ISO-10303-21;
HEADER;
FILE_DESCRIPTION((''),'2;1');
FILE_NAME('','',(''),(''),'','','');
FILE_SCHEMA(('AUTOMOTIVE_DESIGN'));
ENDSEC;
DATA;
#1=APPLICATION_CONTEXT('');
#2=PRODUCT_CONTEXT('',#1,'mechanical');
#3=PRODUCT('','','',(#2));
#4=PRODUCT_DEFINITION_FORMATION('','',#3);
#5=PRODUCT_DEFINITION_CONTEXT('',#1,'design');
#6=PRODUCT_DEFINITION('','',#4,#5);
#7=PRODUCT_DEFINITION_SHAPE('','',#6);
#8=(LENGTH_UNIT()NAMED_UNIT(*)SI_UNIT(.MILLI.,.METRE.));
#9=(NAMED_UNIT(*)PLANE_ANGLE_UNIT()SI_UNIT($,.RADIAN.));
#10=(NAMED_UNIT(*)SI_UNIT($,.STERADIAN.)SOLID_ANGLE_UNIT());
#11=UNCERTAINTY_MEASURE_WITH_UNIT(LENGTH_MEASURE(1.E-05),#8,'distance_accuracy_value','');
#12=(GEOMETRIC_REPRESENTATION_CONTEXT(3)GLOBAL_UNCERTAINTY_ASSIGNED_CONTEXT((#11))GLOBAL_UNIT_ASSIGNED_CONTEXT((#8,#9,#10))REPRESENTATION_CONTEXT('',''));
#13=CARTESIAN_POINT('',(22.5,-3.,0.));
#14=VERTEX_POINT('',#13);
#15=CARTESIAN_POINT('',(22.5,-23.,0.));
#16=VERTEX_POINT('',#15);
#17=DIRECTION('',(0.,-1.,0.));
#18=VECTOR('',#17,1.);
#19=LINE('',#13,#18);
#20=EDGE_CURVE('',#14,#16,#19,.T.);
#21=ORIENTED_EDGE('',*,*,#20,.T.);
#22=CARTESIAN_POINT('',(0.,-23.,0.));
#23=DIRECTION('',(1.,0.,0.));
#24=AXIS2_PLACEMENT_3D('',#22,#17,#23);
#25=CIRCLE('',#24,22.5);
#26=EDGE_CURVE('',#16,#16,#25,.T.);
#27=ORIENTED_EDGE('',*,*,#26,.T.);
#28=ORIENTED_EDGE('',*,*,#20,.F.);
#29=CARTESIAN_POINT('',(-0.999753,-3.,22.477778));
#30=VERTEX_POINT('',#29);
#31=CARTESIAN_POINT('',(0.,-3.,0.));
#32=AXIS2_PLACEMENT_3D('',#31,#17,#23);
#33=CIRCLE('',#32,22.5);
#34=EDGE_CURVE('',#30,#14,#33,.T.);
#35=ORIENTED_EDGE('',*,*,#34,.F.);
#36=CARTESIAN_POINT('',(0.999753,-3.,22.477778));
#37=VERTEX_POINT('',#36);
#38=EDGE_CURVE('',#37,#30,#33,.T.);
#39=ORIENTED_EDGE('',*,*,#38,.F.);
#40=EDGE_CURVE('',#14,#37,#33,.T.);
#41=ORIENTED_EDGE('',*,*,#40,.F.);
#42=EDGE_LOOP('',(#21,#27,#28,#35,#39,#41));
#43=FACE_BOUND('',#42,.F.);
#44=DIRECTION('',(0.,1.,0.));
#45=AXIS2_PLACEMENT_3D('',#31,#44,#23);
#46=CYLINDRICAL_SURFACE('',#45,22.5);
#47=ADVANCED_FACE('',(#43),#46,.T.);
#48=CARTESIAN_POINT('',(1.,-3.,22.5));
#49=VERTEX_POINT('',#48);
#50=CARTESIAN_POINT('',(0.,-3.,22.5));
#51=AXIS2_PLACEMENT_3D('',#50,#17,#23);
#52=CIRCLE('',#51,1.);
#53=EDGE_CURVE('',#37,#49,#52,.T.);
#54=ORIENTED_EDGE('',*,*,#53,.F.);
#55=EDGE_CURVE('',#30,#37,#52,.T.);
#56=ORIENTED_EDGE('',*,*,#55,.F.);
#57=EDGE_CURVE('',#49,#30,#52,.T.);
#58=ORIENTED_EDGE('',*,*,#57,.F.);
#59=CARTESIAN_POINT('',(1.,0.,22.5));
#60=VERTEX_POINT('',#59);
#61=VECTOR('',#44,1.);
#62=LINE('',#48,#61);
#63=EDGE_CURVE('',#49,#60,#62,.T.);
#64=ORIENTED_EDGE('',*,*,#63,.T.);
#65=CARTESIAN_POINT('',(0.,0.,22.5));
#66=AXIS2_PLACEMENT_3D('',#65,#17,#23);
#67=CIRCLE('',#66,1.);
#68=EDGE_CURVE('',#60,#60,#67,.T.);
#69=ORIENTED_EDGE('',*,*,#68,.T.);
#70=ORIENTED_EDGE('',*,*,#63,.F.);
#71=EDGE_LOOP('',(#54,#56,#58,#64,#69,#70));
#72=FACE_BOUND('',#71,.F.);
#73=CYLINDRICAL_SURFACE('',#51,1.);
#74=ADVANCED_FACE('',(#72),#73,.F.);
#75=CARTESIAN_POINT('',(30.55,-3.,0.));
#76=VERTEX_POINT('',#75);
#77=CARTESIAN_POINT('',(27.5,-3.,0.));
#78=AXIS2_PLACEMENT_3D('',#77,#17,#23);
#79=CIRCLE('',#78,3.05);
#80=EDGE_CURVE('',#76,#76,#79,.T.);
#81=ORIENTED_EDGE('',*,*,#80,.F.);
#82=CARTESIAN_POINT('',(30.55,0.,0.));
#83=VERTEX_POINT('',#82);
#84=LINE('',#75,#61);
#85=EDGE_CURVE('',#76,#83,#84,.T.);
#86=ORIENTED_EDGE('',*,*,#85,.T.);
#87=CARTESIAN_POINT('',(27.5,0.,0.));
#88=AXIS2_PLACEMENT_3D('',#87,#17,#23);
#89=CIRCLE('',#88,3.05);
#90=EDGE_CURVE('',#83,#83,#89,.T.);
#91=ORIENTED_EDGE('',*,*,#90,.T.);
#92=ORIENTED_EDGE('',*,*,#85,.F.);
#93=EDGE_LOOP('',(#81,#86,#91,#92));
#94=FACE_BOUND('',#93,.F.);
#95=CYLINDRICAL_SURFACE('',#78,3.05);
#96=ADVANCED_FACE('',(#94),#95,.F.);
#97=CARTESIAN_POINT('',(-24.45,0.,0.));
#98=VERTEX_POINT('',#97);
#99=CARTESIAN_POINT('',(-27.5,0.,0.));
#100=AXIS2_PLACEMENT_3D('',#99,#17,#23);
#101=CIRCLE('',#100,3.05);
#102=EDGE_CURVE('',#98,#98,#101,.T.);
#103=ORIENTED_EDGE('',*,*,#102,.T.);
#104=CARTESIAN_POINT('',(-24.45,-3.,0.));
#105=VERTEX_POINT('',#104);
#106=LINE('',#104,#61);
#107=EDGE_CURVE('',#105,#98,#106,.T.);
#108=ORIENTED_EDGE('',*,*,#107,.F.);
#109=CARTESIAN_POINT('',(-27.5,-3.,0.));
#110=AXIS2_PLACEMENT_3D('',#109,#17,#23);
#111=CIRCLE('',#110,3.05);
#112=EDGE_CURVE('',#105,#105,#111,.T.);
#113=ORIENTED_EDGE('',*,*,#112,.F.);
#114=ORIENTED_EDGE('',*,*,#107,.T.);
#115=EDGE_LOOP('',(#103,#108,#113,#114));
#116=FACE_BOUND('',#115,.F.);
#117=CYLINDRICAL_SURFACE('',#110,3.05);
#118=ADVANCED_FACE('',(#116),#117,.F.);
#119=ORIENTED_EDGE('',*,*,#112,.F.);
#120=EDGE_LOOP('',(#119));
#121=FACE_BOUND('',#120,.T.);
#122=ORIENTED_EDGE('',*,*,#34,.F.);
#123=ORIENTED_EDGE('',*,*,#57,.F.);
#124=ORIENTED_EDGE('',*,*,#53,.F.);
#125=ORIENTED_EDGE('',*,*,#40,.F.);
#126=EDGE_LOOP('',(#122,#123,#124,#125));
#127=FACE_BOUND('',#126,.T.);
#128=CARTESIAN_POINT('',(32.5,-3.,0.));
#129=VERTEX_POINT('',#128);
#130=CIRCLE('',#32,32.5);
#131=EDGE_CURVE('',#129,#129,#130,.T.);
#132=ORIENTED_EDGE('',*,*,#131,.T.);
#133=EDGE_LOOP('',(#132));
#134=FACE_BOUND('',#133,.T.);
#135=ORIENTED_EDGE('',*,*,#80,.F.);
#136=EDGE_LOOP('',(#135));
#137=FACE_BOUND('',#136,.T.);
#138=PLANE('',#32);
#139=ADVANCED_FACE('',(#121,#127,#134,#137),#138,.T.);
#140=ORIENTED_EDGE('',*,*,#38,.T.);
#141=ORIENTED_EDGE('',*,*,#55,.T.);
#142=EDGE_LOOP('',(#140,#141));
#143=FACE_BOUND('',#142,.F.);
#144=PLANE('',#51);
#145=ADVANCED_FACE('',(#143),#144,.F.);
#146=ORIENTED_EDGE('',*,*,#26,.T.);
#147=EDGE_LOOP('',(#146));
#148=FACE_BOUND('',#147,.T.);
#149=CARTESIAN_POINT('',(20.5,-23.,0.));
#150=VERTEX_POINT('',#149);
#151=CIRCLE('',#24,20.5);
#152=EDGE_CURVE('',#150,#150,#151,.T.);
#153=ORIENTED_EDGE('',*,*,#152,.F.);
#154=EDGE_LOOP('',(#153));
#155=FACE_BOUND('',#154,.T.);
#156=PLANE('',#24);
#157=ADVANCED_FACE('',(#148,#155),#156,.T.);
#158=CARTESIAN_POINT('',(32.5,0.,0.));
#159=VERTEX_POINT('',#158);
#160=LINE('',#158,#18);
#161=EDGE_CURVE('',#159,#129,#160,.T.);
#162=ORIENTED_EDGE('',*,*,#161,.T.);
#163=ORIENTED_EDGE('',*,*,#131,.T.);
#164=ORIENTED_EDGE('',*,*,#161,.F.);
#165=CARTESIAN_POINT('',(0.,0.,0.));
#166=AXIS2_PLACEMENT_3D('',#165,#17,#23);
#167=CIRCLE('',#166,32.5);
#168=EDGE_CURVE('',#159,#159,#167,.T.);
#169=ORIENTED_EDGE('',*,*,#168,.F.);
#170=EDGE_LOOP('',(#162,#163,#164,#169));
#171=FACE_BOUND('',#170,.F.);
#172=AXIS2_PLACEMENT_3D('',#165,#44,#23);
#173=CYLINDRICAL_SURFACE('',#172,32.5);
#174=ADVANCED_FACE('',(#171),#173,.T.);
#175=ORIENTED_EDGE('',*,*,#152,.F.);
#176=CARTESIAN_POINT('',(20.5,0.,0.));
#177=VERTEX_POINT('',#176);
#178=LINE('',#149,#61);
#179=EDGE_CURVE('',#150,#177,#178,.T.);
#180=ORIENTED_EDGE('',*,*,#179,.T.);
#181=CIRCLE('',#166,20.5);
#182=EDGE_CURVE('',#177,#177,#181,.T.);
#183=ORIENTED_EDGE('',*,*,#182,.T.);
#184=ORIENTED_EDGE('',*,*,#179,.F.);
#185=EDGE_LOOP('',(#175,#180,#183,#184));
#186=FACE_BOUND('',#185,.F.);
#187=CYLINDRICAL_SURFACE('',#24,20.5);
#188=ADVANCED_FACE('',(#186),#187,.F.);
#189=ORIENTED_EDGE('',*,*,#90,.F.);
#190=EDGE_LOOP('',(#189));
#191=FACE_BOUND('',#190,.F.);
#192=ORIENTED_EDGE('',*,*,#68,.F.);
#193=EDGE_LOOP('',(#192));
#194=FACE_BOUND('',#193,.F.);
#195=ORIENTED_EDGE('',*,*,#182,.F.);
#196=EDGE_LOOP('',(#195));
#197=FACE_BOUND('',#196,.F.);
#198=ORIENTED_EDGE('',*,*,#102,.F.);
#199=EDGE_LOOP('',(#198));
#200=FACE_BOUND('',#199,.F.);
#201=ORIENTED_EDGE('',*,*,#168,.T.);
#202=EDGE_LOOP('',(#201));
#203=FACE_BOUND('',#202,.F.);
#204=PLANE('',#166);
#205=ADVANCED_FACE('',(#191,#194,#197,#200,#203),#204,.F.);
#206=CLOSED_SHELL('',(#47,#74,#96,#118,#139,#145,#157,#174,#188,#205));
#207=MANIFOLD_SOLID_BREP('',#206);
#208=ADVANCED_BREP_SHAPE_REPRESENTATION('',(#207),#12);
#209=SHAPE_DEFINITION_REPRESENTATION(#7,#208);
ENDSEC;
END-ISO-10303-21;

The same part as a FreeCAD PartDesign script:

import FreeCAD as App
import Part
import Sketcher
from FreeCAD import Vector

doc = App.newDocument("Part")
body = doc.addObject("PartDesign::Body", "Body")

# Sketch on XZ plane
sketch1 = body.newObject("Sketcher::SketchObject", "Sketch")
sketch1.AttachmentSupport = (doc.getObject("XZ_Plane"), [""])
sketch1.MapMode = "FlatFace"
sketch1.addGeometry(Part.Circle(Vector(0, 0, 0), Vector(0, 0, 1), 32), False)
sketch1.addConstraint([
    Sketcher.Constraint("Coincident", 0, 3, -1, 1),
    Sketcher.Constraint("Diameter", 0, 65.0),
])
pad1 = body.newObject("PartDesign::Pad", "Pad")
pad1.Profile = sketch1
pad1.Length = 3

# Sketch on XZ plane
sketch2 = body.newObject("Sketcher::SketchObject", "Sketch001")
sketch2.AttachmentSupport = (doc.getObject("XZ_Plane"), [""])
sketch2.MapMode = "FlatFace"
sketch2.AttachmentOffset = App.Placement(Vector(0, 0, 3), App.Rotation())
sketch2.addGeometry(Part.Circle(Vector(0, 0, 0), Vector(0, 0, 1), 22), False)
sketch2.addConstraint([
    Sketcher.Constraint("Coincident", 0, 3, -1, 1),
    Sketcher.Constraint("Diameter", 0, 45.0),
])
pad2 = body.newObject("PartDesign::Pad", "Pad001")
pad2.Profile = sketch2
pad2.Length = 20

# Sketch on XZ plane
sketch3 = body.newObject("Sketcher::SketchObject", "Sketch002")
sketch3.AttachmentSupport = (doc.getObject("XZ_Plane"), [""])
sketch3.MapMode = "FlatFace"
sketch3.AttachmentOffset = App.Placement(Vector(0, 0, 23), App.Rotation())
sketch3.addGeometry(Part.Circle(Vector(0, 0, 0), Vector(0, 0, 1), 20), False)
sketch3.addConstraint([
    Sketcher.Constraint("Coincident", 0, 3, -1, 1),
    Sketcher.Constraint("Diameter", 0, 41.0),
])
pocket1 = body.newObject("PartDesign::Pocket", "Pocket")
pocket1.Profile = sketch3
pocket1.Type = "ThroughAll"

# Sketch on XZ plane
sketch4 = body.newObject("Sketcher::SketchObject", "Sketch003")
sketch4.AttachmentSupport = (doc.getObject("XZ_Plane"), [""])
sketch4.MapMode = "FlatFace"
sketch4.AttachmentOffset = App.Placement(Vector(0, 0, 3), App.Rotation())
sketch4.addGeometry([
    Part.Circle(Vector(27.5, 0, 0), Vector(0, 0, 1), 3),
    Part.Circle(Vector(-27.5, 0, 0), Vector(0, 0, 1), 3),
    Part.Circle(Vector(0, 22.5, 0), Vector(0, 0, 1), 1),
], False)
sketch4.addConstraint([
    Sketcher.Constraint("Equal", 0, 1),
    Sketcher.Constraint("Symmetric", 0, 3, 1, 3, -1, 1),
    Sketcher.Constraint("PointOnObject", 0, 3, -1),
    Sketcher.Constraint("PointOnObject", 2, 3, -2),
    Sketcher.Constraint("Diameter", 2, 2.0),
    Sketcher.Constraint("Diameter", 0, 6.1),
    Sketcher.Constraint("DistanceX", 1, 3, 0, 3, 55.0),
    Sketcher.Constraint("DistanceY", -1, 1, 2, 3, 22.5),
])
pocket2 = body.newObject("PartDesign::Pocket", "Pocket001")
pocket2.Profile = sketch4
pocket2.Type = "ThroughAll"

doc.recompute()
